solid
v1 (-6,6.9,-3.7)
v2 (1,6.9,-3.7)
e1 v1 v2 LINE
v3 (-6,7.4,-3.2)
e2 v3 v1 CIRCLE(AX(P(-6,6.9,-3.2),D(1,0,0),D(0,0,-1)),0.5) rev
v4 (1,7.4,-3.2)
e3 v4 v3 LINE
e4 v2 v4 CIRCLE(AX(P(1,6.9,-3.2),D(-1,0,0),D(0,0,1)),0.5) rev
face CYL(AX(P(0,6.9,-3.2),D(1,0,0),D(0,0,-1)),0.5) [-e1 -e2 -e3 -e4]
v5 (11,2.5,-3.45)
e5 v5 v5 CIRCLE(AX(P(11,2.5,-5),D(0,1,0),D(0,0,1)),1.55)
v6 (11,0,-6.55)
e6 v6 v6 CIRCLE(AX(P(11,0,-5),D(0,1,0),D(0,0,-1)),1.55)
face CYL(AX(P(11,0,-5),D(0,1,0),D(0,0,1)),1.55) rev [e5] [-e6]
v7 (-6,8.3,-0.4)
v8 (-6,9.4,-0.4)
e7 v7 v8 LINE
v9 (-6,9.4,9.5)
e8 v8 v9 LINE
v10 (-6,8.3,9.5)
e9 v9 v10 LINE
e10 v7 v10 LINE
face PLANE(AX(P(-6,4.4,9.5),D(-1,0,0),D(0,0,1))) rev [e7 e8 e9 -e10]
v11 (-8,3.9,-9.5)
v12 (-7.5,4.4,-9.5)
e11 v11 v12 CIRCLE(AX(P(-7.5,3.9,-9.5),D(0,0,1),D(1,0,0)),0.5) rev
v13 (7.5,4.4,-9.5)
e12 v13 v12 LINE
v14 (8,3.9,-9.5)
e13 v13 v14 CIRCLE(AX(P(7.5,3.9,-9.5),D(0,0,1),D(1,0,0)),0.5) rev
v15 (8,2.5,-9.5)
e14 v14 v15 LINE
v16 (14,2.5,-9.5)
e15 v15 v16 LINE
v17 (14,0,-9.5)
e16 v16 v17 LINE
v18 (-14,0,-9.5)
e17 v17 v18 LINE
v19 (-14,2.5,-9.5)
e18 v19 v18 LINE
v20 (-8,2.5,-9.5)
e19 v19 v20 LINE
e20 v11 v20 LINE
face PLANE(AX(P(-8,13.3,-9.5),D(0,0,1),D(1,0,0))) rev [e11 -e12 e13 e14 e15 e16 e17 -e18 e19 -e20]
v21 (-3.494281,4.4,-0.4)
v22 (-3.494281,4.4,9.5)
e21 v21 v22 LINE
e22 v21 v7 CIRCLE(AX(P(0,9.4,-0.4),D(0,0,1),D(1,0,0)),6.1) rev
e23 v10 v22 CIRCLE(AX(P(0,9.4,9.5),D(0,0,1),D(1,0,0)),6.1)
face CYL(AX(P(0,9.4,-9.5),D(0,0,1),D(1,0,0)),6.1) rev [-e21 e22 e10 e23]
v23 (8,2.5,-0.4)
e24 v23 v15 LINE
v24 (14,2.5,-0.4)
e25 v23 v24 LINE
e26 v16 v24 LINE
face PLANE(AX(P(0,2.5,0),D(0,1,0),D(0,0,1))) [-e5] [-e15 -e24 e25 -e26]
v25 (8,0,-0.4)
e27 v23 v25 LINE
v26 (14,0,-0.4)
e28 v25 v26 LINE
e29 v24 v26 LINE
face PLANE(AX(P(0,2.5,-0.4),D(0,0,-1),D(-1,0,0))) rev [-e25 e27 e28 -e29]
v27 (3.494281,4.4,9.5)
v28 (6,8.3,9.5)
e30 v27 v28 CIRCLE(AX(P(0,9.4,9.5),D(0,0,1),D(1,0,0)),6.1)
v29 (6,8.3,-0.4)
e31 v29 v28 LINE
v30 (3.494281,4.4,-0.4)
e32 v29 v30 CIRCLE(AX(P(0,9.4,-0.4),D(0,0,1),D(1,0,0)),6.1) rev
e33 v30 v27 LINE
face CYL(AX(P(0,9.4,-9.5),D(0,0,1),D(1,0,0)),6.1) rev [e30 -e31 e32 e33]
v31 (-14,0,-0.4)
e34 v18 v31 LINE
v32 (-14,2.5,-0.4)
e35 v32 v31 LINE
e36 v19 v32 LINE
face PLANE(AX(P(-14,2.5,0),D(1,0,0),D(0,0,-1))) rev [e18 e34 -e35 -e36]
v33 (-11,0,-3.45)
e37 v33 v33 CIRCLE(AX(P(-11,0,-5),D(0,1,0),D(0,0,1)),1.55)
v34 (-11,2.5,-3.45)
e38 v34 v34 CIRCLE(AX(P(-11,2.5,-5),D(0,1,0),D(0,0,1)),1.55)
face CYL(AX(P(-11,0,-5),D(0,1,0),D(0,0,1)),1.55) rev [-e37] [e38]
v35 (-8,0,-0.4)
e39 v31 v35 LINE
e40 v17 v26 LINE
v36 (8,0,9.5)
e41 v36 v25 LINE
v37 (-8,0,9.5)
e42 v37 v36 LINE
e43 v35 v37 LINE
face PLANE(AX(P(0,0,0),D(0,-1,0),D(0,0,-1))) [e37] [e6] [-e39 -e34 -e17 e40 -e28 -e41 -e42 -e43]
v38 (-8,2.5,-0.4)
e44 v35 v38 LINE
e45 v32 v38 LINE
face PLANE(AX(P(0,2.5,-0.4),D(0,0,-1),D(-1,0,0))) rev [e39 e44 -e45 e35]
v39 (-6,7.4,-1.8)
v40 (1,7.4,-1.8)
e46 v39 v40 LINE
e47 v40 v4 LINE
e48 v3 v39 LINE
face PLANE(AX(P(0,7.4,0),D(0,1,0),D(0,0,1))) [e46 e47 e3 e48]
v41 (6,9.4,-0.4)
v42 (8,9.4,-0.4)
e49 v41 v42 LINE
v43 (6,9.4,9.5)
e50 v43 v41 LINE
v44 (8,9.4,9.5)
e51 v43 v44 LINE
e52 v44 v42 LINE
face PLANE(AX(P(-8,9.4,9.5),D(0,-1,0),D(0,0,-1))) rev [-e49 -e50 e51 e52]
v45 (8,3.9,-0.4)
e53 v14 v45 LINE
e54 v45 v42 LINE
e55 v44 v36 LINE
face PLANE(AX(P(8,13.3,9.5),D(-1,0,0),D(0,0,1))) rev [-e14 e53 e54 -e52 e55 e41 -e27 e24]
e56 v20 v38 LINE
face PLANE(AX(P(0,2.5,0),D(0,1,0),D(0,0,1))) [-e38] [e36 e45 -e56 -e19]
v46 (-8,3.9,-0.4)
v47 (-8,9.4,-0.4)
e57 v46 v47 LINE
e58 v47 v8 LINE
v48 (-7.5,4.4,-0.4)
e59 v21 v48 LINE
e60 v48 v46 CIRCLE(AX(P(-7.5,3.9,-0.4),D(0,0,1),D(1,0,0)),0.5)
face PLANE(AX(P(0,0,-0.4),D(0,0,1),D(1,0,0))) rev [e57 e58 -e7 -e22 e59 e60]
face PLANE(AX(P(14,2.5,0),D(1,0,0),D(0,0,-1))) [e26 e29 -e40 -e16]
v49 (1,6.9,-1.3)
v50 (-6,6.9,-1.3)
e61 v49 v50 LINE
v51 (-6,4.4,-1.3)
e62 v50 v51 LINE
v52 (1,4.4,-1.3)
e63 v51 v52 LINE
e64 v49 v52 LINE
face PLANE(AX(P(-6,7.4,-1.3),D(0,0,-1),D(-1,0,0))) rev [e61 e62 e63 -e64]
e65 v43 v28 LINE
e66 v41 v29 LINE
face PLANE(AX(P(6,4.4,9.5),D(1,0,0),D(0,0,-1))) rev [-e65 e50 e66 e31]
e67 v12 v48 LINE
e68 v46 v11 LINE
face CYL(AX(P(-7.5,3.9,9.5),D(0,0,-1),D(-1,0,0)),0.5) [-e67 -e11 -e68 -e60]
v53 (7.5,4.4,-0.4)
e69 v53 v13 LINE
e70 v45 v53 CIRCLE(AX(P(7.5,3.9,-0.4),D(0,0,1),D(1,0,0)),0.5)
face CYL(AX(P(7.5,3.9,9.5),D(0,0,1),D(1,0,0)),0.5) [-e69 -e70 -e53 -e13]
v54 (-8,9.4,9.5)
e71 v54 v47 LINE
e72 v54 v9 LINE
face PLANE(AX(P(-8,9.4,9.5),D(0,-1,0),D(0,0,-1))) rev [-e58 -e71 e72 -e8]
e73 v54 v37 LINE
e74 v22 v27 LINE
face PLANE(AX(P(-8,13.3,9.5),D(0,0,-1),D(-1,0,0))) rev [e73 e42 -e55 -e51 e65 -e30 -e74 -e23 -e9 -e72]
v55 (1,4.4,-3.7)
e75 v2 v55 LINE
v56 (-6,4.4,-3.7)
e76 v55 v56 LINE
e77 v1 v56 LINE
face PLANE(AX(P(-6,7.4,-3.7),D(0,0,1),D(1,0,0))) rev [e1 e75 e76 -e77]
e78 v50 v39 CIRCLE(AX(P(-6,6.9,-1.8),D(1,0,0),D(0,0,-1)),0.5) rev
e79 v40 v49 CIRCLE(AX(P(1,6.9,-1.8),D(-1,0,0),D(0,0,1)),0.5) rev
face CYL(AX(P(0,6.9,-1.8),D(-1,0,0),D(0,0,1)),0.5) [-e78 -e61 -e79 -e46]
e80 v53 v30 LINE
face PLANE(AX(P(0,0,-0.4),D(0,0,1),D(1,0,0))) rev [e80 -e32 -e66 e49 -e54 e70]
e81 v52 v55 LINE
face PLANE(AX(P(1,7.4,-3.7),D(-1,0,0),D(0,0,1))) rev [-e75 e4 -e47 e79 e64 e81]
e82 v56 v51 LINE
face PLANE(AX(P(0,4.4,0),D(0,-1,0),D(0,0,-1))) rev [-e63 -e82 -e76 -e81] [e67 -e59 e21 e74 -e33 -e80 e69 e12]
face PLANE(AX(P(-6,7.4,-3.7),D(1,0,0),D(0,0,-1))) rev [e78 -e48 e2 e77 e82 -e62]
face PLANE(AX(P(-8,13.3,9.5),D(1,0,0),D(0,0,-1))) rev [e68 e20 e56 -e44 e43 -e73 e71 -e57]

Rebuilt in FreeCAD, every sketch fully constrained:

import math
import FreeCAD as App
import Part
import Sketcher
from FreeCAD import Vector


def edges_at(feature, points):
    """Names of the edges that pass closest to the given points."""
    edges = feature.Shape.Edges
    near = lambda p: min(range(len(edges)), key=lambda i: edges[i].distToShape(Part.Vertex(*p))[0])
    return sorted({f"Edge{near(p) + 1}" for p in points})


def add_polygon(sketch, points):
    """Adds a closed chain of lines whose ends are joined by coincident constraints."""
    first, n = sketch.GeometryCount, len(points)
    for a, b in zip(points, points[1:] + points[:1]):
        sketch.addGeometry(Part.LineSegment(App.Vector(*a, 0), App.Vector(*b, 0)), False)
    for i in range(n):
        sketch.addConstraint(Sketcher.Constraint("Coincident", first + i, 2, first + (i + 1) % n, 1))

doc = App.newDocument("Part")
body = doc.addObject("PartDesign::Body", "Body")

# Sketch on XZ plane
sketch1 = body.newObject("Sketcher::SketchObject", "Sketch")
sketch1.AttachmentSupport = (doc.getObject("XZ_Plane"), [""])
sketch1.MapMode = "FlatFace"
add_polygon(sketch1, [(-8, -10), (-8, 10), (8, 10), (8, -10)])  # lines 0-3
sketch1.addConstraint([
    Sketcher.Constraint("Vertical", 0),
    Sketcher.Constraint("Horizontal", 1),
    Sketcher.Constraint("Vertical", 2),
    Sketcher.Constraint("Horizontal", 3),
    Sketcher.Constraint("Symmetric", 0, 2, 2, 2, -1, 1),
    Sketcher.Constraint("DistanceX", 1, 1, 1, 2, 16.0),
    Sketcher.Constraint("DistanceY", 0, 1, 0, 2, 19.0),
])
pad1 = body.newObject("PartDesign::Pad", "Pad")
pad1.Profile = sketch1
pad1.Length = 13.3
pad1.Reversed = True

# Sketch on XZ plane
sketch2 = body.newObject("Sketcher::SketchObject", "Sketch001")
sketch2.AttachmentSupport = (doc.getObject("XZ_Plane"), [""])
sketch2.MapMode = "FlatFace"
sketch2.AttachmentOffset = App.Placement(Vector(0, 0, -13.3), App.Rotation())
add_polygon(sketch2, [(-6, -10), (-6, 10), (6, 10), (6, -10)])  # lines 0-3
sketch2.addConstraint([
    Sketcher.Constraint("Vertical", 0),
    Sketcher.Constraint("Horizontal", 1),
    Sketcher.Constraint("Vertical", 2),
    Sketcher.Constraint("Horizontal", 3),
    Sketcher.Constraint("Symmetric", 0, 2, 2, 2, -1, 1),
    Sketcher.Constraint("DistanceX", 1, 1, 1, 2, 12.0),
    Sketcher.Constraint("DistanceY", 0, 1, 0, 2, 19.0),
])
pocket1 = body.newObject("PartDesign::Pocket", "Pocket")
pocket1.Profile = sketch2
pocket1.Length = 8.9
pocket1.Reversed = True

# Sketch on YZ plane
sketch3 = body.newObject("Sketcher::SketchObject", "Sketch002")
sketch3.AttachmentSupport = (doc.getObject("YZ_Plane"), [""])
sketch3.MapMode = "FlatFace"
add_polygon(sketch3, [(13.3, 9.5), (9.4, 9.5), (9.4, -0.4), (13.3, -0.4)])  # lines 0-3
sketch3.addConstraint([
    Sketcher.Constraint("Horizontal", 0),
    Sketcher.Constraint("Vertical", 1),
    Sketcher.Constraint("Horizontal", 2),
    Sketcher.Constraint("Vertical", 3),
    Sketcher.Constraint("DistanceX", 0, 2, 0, 1, 3.9),
    Sketcher.Constraint("DistanceY", 1, 2, 1, 1, 9.9),
    Sketcher.Constraint("DistanceX", -1, 1, 0, 2, 9.4),
    Sketcher.Constraint("DistanceY", -1, 1, 0, 2, 9.5),
])
pocket2 = body.newObject("PartDesign::Pocket", "Pocket001")
pocket2.Profile = sketch3
pocket2.Type = "ThroughAll"
pocket2.Midplane = True

# Sketch on XZ plane
sketch4 = body.newObject("Sketcher::SketchObject", "Sketch003")
sketch4.AttachmentSupport = (doc.getObject("XZ_Plane"), [""])
sketch4.MapMode = "FlatFace"
add_polygon(sketch4, [(14, 0), (14, -10), (-14, -10), (-14, 0)])  # lines 0-3
sketch4.addConstraint([
    Sketcher.Constraint("Vertical", 0),
    Sketcher.Constraint("Horizontal", 1),
    Sketcher.Constraint("Vertical", 2),
    Sketcher.Constraint("Horizontal", 3),
    Sketcher.Constraint("DistanceX", 1, 2, 1, 1, 28.0),
    Sketcher.Constraint("DistanceY", 0, 2, 0, 1, 9.1),
    Sketcher.Constraint("DistanceX", -1, 1, 0, 2, 14.0),
    Sketcher.Constraint("DistanceY", 0, 2, -1, 1, 9.5),
])
pad2 = body.newObject("PartDesign::Pad", "Pad001")
pad2.Profile = sketch4
pad2.Length = 2.5
pad2.Reversed = True

# Sketch on XZ plane
sketch5 = body.newObject("Sketcher::SketchObject", "Sketch004")
sketch5.AttachmentSupport = (doc.getObject("XZ_Plane"), [""])
sketch5.MapMode = "FlatFace"
sketch5.AttachmentOffset = App.Placement(Vector(0, 0, -2.5), App.Rotation())
sketch5.addGeometry([
    Part.Circle(Vector(-11, -5, 0), Vector(0, 0, 1), 1.6),
    Part.Circle(Vector(11, -5, 0), Vector(0, 0, 1), 1.6),
], False)
sketch5.addConstraint([
    Sketcher.Constraint("Equal", 0, 1),
    Sketcher.Constraint("Symmetric", 0, 3, 1, 3, -2),
    Sketcher.Constraint("Diameter", 0, 3.1),
    Sketcher.Constraint("DistanceX", 0, 3, -1, 1, 11.0),
    Sketcher.Constraint("DistanceY", 0, 3, -1, 1, 5.0),
])
pocket3 = body.newObject("PartDesign::Pocket", "Pocket002")
pocket3.Profile = sketch5
pocket3.Type = "ThroughAll"
pocket3.Midplane = True

# Sketch on XY plane
sketch6 = body.newObject("Sketcher::SketchObject", "Sketch005")
sketch6.AttachmentSupport = (doc.getObject("XY_Plane"), [""])
sketch6.MapMode = "FlatFace"
add_polygon(sketch6, [(-6, 13), (-6, 4), (6, 4), (6, 13)])  # lines 0-3
sketch6.addConstraint([
    Sketcher.Constraint("Vertical", 0),
    Sketcher.Constraint("Horizontal", 1),
    Sketcher.Constraint("Vertical", 2),
    Sketcher.Constraint("Horizontal", 3),
    Sketcher.Constraint("DistanceX", 1, 1, 1, 2, 12.0),
    Sketcher.Constraint("DistanceY", 0, 2, 0, 1, 8.9),
    Sketcher.Constraint("DistanceX", 0, 2, -1, 1, 6.0),
    Sketcher.Constraint("DistanceY", -1, 1, 0, 2, 4.4),
])
pad3 = body.newObject("PartDesign::Pad", "Pad002")
pad3.Profile = sketch6
pad3.Type = "TwoLengths"
pad3.Length = 9.5
pad3.Length2 = 9.1

# Sketch on XY plane
sketch7 = body.newObject("Sketcher::SketchObject", "Sketch006")
sketch7.AttachmentSupport = (doc.getObject("XY_Plane"), [""])
sketch7.MapMode = "FlatFace"
sketch7.addGeometry([
    Part.ArcOfCircle(Part.Circle(Vector(0, 9.4, 0), Vector(0, 0, 1), 6.1), math.radians(-170), math.radians(-125)),  # 0
    Part.LineSegment(Vector(-3.5, 4.4, 0), Vector(3.5, 4.4, 0)),  # 1
    Part.ArcOfCircle(Part.Circle(Vector(0, 9.4, 0), Vector(0, 0, 1), 6.1), math.radians(-55), math.radians(-10)),  # 2
    Part.LineSegment(Vector(6, 8.3, 0), Vector(6, 13.3, 0)),  # 3
    Part.LineSegment(Vector(6, 13.3, 0), Vector(-6, 13.3, 0)),  # 4
    Part.LineSegment(Vector(-6, 13.3, 0), Vector(-6, 8.3, 0)),  # 5
], False)
sketch7.addConstraint([
    Sketcher.Constraint("Coincident", 0, 2, 1, 1),
    Sketcher.Constraint("Coincident", 1, 2, 2, 1),
    Sketcher.Constraint("Coincident", 2, 2, 3, 1),
    Sketcher.Constraint("Coincident", 3, 2, 4, 1),
    Sketcher.Constraint("Coincident", 4, 2, 5, 1),
    Sketcher.Constraint("Coincident", 5, 2, 0, 1),
    Sketcher.Constraint("Horizontal", 1),
    Sketcher.Constraint("Vertical", 3),
    Sketcher.Constraint("Horizontal", 4),
    Sketcher.Constraint("Vertical", 5),
    Sketcher.Constraint("Coincident", 2, 3, 0, 3),
    Sketcher.Constraint("Equal", 0, 2),
    Sketcher.Constraint("Symmetric", 2, 2, 5, 2, -2),
    Sketcher.Constraint("Radius", 0, 6.1),
    Sketcher.Constraint("DistanceX", 4, 2, 4, 1, 12.0),
    Sketcher.Constraint("DistanceY", 3, 1, 3, 2, 5.0),
    Sketcher.Constraint("DistanceY", 0, 2, 2, 3, 5.0),
    Sketcher.Constraint("DistanceY", -1, 1, 0, 3, 9.4),
])
pocket4 = body.newObject("PartDesign::Pocket", "Pocket003")
pocket4.Profile = sketch7
pocket4.Type = "ThroughAll"
pocket4.Midplane = True
doc.recompute()

fillet = body.newObject("PartDesign::Fillet", "Fillet")
fillet.Base = (pocket4, edges_at(pocket4, [(-6, 4.4, -9.3), (6, 4.4, -9.3)]))
fillet.Radius = 0.9

# Sketch on XY plane
sketch8 = body.newObject("Sketcher::SketchObject", "Sketch007")
sketch8.AttachmentSupport = (doc.getObject("XY_Plane"), [""])
sketch8.MapMode = "FlatFace"
sketch8.AttachmentOffset = App.Placement(Vector(0, 0, -9.5), App.Rotation())
add_polygon(sketch8, [(8, 13), (8, 4), (-8, 4), (-8, 13)])  # lines 0-3
sketch8.addConstraint([
    Sketcher.Constraint("Vertical", 0),
    Sketcher.Constraint("Horizontal", 1),
    Sketcher.Constraint("Vertical", 2),
    Sketcher.Constraint("Horizontal", 3),
    Sketcher.Constraint("DistanceY", 0, 2, 0, 1, 8.9),
    Sketcher.Constraint("DistanceX", 1, 2, -1, 1, 8.0),
    Sketcher.Constraint("DistanceY", -1, 1, 0, 2, 4.4),
    Sketcher.Constraint("DistanceX", 1, 2, 1, 1, 16.145603),
])
pocket5 = body.newObject("PartDesign::Pocket", "Pocket004")
pocket5.Profile = sketch8
pocket5.Length = 9.1
pocket5.Reversed = True

# Sketch on XZ plane
sketch9 = body.newObject("Sketcher::SketchObject", "Sketch008")
sketch9.AttachmentSupport = (doc.getObject("XZ_Plane"), [""])
sketch9.MapMode = "FlatFace"
sketch9.AttachmentOffset = App.Placement(Vector(0, 0, -4.4), App.Rotation())
add_polygon(sketch9, [(-6, -3.7), (-6, -1.3), (1, -1.3), (1, -3.7)])  # lines 0-3
sketch9.addConstraint([
    Sketcher.Constraint("Vertical", 0),
    Sketcher.Constraint("Horizontal", 1),
    Sketcher.Constraint("Vertical", 2),
    Sketcher.Constraint("Horizontal", 3),
    Sketcher.Constraint("DistanceX", 1, 1, 1, 2, 7.0),
    Sketcher.Constraint("DistanceY", 0, 1, 0, 2, 2.4),
    Sketcher.Constraint("DistanceX", 0, 2, -1, 1, 6.0),
    Sketcher.Constraint("DistanceY", 0, 2, -1, 1, 1.3),
])
pad4 = body.newObject("PartDesign::Pad", "Pad003")
pad4.Profile = sketch9
pad4.Length = 3
pad4.Reversed = True
doc.recompute()

fillet2 = body.newObject("PartDesign::Fillet", "Fillet001")
fillet2.Base = (pad4, edges_at(pad4, [(-2.5, 7.4, -3.7)]))
fillet2.Radius = 0.5
doc.recompute()

fillet3 = body.newObject("PartDesign::Fillet", "Fillet002")
fillet3.Base = (fillet2, edges_at(fillet2, [(-2.5, 7.4, -1.3)]))
fillet3.Radius = 0.5
doc.recompute()

fillet4 = body.newObject("PartDesign::Fillet", "Fillet003")
fillet4.Base = (fillet3, edges_at(fillet3, [(8, 4.4, -4.95), (-8, 4.4, -4.95)]))
fillet4.Radius = 0.5

doc.recompute()
